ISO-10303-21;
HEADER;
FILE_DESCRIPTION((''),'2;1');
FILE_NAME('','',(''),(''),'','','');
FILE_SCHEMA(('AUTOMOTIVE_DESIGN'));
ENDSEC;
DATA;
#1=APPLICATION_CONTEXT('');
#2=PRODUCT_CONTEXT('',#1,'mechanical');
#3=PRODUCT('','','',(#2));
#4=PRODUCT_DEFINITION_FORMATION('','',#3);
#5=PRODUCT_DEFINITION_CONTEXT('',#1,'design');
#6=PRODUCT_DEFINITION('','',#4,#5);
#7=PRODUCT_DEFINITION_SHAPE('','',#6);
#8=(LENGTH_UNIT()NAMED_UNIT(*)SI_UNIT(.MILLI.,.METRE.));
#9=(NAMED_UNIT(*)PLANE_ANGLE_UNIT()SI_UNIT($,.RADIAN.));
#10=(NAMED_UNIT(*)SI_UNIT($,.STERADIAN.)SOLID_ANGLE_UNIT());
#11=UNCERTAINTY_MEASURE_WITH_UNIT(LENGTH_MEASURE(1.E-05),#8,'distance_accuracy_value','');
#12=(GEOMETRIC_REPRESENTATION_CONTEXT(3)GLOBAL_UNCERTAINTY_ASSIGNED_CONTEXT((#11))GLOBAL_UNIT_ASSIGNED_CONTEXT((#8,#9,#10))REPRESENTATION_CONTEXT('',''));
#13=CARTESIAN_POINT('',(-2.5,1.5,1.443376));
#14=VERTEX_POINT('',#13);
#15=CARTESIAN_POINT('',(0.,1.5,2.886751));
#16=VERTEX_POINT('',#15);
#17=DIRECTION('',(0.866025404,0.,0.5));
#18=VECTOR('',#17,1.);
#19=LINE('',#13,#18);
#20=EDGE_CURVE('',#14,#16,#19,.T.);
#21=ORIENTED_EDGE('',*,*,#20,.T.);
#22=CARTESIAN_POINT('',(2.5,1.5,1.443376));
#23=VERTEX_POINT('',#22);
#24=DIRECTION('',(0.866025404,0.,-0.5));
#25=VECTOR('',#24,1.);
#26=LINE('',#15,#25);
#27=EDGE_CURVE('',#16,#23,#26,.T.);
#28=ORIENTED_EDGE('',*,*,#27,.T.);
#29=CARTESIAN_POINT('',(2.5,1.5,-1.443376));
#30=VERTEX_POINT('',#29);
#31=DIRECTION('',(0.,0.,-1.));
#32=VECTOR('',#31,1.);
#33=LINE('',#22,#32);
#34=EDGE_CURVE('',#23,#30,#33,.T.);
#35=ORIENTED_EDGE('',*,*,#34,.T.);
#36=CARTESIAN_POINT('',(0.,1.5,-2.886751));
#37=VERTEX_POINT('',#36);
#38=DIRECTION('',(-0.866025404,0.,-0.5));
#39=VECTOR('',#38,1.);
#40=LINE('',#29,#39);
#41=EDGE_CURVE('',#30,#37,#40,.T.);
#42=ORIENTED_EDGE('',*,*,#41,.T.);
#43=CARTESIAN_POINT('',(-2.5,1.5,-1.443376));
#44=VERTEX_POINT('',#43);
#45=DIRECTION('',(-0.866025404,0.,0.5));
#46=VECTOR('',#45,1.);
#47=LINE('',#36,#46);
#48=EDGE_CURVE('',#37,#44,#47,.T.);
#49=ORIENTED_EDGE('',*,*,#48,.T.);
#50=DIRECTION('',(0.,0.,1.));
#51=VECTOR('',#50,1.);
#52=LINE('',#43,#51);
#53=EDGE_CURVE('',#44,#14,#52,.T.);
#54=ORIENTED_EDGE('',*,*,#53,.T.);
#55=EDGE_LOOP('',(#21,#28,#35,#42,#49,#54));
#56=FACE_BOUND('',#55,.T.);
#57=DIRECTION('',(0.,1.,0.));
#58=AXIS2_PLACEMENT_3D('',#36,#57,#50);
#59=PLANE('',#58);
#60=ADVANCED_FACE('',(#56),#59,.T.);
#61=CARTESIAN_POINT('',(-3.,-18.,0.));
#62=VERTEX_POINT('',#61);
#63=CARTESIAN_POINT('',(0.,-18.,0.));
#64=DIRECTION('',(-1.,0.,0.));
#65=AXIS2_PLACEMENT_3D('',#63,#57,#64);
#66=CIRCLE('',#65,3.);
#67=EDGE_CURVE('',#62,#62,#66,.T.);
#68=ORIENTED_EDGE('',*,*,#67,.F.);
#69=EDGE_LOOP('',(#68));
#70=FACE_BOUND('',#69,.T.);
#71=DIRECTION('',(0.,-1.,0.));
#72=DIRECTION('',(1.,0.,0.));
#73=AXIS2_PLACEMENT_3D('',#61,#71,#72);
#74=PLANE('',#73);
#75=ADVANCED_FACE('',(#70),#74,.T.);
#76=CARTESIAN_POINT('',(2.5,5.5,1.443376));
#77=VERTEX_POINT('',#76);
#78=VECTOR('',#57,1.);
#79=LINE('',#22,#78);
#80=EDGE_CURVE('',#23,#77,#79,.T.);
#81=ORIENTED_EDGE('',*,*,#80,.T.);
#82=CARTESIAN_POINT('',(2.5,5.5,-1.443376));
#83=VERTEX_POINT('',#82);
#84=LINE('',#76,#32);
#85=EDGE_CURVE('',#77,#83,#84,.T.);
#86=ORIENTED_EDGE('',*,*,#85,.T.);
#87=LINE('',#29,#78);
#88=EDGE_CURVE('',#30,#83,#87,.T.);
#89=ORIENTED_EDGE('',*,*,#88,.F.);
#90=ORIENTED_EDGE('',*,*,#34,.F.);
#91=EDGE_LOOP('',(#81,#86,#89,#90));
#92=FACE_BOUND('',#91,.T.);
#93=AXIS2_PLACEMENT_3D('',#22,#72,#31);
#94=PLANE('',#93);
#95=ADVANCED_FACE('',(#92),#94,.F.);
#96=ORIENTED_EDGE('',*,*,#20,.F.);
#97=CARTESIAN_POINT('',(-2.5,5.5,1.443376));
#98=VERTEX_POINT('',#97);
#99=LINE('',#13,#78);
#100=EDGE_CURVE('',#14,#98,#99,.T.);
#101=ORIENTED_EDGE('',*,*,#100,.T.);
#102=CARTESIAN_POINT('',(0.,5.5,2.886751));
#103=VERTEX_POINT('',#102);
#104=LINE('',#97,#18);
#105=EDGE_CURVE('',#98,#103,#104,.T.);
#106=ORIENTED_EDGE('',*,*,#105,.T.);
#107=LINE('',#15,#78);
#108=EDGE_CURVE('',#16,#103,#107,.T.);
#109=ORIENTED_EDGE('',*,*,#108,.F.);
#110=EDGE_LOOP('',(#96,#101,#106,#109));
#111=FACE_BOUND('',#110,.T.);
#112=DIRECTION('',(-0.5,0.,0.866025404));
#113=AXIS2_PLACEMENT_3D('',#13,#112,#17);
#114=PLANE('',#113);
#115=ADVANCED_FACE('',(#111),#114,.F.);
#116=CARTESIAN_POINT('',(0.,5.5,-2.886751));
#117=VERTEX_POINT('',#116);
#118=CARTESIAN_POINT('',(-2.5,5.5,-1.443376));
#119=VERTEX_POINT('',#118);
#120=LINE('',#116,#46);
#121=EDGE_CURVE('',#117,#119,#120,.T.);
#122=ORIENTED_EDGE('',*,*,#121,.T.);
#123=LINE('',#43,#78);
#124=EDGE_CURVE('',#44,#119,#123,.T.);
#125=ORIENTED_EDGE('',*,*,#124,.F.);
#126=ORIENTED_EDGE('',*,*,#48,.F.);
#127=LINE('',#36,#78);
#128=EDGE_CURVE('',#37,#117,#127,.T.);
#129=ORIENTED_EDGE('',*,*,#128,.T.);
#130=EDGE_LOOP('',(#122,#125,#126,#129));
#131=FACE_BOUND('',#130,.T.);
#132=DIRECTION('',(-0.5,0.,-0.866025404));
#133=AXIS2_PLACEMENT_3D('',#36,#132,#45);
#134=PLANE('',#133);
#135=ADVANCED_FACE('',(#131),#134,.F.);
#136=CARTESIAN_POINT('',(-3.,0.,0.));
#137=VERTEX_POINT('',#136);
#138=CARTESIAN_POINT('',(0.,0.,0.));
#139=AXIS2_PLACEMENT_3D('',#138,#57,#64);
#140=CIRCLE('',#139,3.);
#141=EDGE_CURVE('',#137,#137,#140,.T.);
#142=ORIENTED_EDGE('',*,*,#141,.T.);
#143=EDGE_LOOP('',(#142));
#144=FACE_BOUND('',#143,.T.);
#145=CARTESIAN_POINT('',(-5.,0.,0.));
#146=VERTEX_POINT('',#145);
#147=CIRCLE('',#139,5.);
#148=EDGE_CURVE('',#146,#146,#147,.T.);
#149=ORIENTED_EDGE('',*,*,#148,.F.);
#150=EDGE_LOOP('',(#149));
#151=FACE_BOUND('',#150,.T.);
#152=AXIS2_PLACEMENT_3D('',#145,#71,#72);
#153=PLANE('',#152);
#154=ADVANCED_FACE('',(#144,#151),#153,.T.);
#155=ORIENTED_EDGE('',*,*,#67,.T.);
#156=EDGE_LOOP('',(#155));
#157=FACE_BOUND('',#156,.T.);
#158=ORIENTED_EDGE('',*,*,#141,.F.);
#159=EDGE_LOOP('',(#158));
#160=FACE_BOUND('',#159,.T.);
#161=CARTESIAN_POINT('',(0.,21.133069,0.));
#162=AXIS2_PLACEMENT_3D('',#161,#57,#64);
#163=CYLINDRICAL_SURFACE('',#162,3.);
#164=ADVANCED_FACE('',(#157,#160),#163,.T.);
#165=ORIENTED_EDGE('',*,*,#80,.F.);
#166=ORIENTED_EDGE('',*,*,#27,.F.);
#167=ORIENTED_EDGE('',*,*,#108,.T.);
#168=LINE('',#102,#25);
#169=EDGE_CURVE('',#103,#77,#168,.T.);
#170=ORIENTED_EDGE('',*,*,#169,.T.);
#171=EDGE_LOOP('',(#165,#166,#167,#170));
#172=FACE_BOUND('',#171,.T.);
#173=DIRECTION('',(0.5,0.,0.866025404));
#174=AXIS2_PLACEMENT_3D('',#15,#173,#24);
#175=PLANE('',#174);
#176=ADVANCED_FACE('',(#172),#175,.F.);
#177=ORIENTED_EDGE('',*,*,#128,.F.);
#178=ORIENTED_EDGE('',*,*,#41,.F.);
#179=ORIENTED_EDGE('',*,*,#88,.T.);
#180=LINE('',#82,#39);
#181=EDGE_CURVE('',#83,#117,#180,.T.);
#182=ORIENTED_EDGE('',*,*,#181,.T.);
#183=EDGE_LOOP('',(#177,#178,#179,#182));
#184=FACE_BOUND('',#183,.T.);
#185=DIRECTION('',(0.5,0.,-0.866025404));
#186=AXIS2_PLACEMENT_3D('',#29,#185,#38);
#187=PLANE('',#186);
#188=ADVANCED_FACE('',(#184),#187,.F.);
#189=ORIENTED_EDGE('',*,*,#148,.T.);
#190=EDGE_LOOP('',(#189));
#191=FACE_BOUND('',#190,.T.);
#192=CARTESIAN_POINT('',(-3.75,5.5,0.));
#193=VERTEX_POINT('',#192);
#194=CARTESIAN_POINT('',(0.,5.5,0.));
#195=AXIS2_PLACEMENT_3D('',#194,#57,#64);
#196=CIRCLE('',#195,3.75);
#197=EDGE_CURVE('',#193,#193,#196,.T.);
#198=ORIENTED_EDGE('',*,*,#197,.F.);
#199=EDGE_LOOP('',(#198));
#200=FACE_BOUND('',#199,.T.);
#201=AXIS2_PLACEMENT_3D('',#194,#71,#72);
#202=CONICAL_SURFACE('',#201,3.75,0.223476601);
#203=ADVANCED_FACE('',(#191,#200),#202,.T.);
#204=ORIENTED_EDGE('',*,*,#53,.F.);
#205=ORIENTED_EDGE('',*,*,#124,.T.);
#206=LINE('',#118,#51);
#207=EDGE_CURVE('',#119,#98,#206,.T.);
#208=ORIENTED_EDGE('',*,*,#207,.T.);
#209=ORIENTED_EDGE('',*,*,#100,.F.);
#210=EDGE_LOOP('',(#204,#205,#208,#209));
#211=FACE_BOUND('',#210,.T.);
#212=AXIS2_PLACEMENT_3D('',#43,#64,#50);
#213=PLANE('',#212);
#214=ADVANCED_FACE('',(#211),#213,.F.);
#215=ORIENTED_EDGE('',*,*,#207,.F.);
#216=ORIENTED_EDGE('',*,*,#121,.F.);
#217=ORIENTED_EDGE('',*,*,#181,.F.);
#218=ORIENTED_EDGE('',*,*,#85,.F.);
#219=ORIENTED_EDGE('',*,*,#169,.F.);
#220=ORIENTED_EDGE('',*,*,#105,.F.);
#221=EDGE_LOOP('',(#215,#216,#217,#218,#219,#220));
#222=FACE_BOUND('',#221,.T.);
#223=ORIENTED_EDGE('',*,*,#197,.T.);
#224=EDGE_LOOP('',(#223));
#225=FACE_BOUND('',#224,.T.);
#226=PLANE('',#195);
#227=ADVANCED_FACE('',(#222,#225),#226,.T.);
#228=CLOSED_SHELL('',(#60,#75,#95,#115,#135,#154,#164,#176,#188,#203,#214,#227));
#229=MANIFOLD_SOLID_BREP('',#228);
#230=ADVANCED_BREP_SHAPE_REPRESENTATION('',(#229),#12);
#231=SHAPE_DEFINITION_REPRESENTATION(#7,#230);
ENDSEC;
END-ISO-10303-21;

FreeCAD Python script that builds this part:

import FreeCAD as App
import Part
import Sketcher
Q = App.Units.Quantity

doc = App.newDocument("Part")
params = doc.addObject("Spreadsheet::Sheet", "Params")
for row, (alias, value) in enumerate([
    ("sketch1_width", "2 mm"),
    ("sketch1_width2", "3 mm"),
    ("sketch1_height", "18 mm"),
    ("sketch1_height2", "23.5 mm"),
    ("sketch1_width3", "3.75 mm"),
    ("revolution_angle", "360 deg"),
    ("pocket1_length", "4 mm"),
], start=1):
    params.set(f"A{row}", alias)
    params.set(f"B{row}", "=" + value)
    params.setAlias(f"B{row}", alias)

body = doc.addObject("PartDesign::Body", "Body")

# Sketch on XY plane
sketch1 = body.newObject("Sketcher::SketchObject", "Sketch")
sketch1.AttachmentSupport = (doc.getObject("XY_Plane"), [""])
sketch1.MapMode = "FlatFace"
sketch1.addGeometry([
    Part.LineSegment(App.Vector(0, -18, 0), App.Vector(0, 5.5, 0)),  # 0
    Part.LineSegment(App.Vector(0, 5.5, 0), App.Vector(-3.8, 5.5, 0)),  # 1
    Part.LineSegment(App.Vector(-3.8, 5.5, 0), App.Vector(-5, 0, 0)),  # 2
    Part.LineSegment(App.Vector(-5, 0, 0), App.Vector(-3, 0, 0)),  # 3
    Part.LineSegment(App.Vector(-3, 0, 0), App.Vector(-3, -18, 0)),  # 4
    Part.LineSegment(App.Vector(-3, -18, 0), App.Vector(0, -18, 0)),  # 5
], False)
sketch1.addConstraint([
    Sketcher.Constraint("Coincident", 0, 2, 1, 1),
    Sketcher.Constraint("Coincident", 1, 2, 2, 1),
    Sketcher.Constraint("Coincident", 2, 2, 3, 1),
    Sketcher.Constraint("Coincident", 3, 2, 4, 1),
    Sketcher.Constraint("Coincident", 4, 2, 5, 1),
    Sketcher.Constraint("Coincident", 5, 2, 0, 1),
    Sketcher.Constraint("Vertical", 0),
    Sketcher.Constraint("Horizontal", 1),
    Sketcher.Constraint("Horizontal", 3),
    Sketcher.Constraint("Vertical", 4),
    Sketcher.Constraint("Horizontal", 5),
    Sketcher.Constraint("PointOnObject", 0, 2, -2),
    Sketcher.Constraint("PointOnObject", 2, 2, -1),
    Sketcher.Constraint("DistanceX", 3, 1, 3, 2, 2.0),
    Sketcher.Constraint("DistanceX", 5, 1, 5, 2, 3.0),
    Sketcher.Constraint("DistanceY", 4, 2, 4, 1, 18.0),
    Sketcher.Constraint("DistanceY", 0, 1, 0, 2, 23.5),
    Sketcher.Constraint("DistanceX", 1, 2, 1, 1, 3.75),
])
sketch1.setExpression("Constraints[13]", "Params.sketch1_width")
sketch1.setExpression("Constraints[14]", "Params.sketch1_width2")
sketch1.setExpression("Constraints[15]", "Params.sketch1_height")
sketch1.setExpression("Constraints[16]", "Params.sketch1_height2")
sketch1.setExpression("Constraints[17]", "Params.sketch1_width3")
revolution = body.newObject("PartDesign::Revolution", "Revolution")
revolution.Profile = sketch1
revolution.ReferenceAxis = (sketch1, ["V_Axis"])
revolution.setExpression("Angle", "Params.revolution_angle")

# Sketch on XZ plane
sketch2 = body.newObject("Sketcher::SketchObject", "Sketch001")
sketch2.AttachmentSupport = (doc.getObject("XZ_Plane"), [""])
sketch2.MapMode = "FlatFace"
sketch2.AttachmentOffset = App.Placement(App.Vector(0, 0, -5.5), App.Rotation())
sketch2.addGeometry([
    Part.LineSegment(App.Vector(0, -2.9, 0), App.Vector(-2.5, -1.4, 0)),  # 0
    Part.LineSegment(App.Vector(-2.5, -1.4, 0), App.Vector(-2.5, 1.4, 0)),  # 1
    Part.LineSegment(App.Vector(-2.5, 1.4, 0), App.Vector(0, 2.9, 0)),  # 2
    Part.LineSegment(App.Vector(0, 2.9, 0), App.Vector(2.5, 1.4, 0)),  # 3
    Part.LineSegment(App.Vector(2.5, 1.4, 0), App.Vector(2.5, -1.4, 0)),  # 4
    Part.LineSegment(App.Vector(2.5, -1.4, 0), App.Vector(0, -2.9, 0)),  # 5
], False)
sketch2.addConstraint([
    Sketcher.Constraint("Coincident", 0, 2, 1, 1),
    Sketcher.Constraint("Coincident", 1, 2, 2, 1),
    Sketcher.Constraint("Coincident", 2, 2, 3, 1),
    Sketcher.Constraint("Coincident", 3, 2, 4, 1),
    Sketcher.Constraint("Coincident", 4, 2, 5, 1),
    Sketcher.Constraint("Coincident", 5, 2, 0, 1),
    Sketcher.Constraint("Vertical", 1),
    Sketcher.Constraint("Vertical", 4),
    Sketcher.Constraint("Symmetric", 0, 2, 3, 2, -1, 1),
    Sketcher.Constraint("Symmetric", 2, 2, 5, 2, -1, 1),
    Sketcher.Constraint("PointOnObject", 2, 2, -2),
    Sketcher.Constraint("Parallel", 2, 5),
    Sketcher.Constraint("Horizontal", 1, 2, 3, 2),
    Sketcher.Constraint("Angle", 0, Q("150 deg")),
    Sketcher.Constraint("DistanceX", 1, 2, 3, 2, 5.0),
    Sketcher.Constraint("DistanceY", 1, 1, 1, 2, 2.886751),
])
pocket1 = body.newObject("PartDesign::Pocket", "Pocket")
pocket1.Profile = sketch2
pocket1.setExpression("Length", "Params.pocket1_length")
pocket1.Reversed = True

doc.recompute()
